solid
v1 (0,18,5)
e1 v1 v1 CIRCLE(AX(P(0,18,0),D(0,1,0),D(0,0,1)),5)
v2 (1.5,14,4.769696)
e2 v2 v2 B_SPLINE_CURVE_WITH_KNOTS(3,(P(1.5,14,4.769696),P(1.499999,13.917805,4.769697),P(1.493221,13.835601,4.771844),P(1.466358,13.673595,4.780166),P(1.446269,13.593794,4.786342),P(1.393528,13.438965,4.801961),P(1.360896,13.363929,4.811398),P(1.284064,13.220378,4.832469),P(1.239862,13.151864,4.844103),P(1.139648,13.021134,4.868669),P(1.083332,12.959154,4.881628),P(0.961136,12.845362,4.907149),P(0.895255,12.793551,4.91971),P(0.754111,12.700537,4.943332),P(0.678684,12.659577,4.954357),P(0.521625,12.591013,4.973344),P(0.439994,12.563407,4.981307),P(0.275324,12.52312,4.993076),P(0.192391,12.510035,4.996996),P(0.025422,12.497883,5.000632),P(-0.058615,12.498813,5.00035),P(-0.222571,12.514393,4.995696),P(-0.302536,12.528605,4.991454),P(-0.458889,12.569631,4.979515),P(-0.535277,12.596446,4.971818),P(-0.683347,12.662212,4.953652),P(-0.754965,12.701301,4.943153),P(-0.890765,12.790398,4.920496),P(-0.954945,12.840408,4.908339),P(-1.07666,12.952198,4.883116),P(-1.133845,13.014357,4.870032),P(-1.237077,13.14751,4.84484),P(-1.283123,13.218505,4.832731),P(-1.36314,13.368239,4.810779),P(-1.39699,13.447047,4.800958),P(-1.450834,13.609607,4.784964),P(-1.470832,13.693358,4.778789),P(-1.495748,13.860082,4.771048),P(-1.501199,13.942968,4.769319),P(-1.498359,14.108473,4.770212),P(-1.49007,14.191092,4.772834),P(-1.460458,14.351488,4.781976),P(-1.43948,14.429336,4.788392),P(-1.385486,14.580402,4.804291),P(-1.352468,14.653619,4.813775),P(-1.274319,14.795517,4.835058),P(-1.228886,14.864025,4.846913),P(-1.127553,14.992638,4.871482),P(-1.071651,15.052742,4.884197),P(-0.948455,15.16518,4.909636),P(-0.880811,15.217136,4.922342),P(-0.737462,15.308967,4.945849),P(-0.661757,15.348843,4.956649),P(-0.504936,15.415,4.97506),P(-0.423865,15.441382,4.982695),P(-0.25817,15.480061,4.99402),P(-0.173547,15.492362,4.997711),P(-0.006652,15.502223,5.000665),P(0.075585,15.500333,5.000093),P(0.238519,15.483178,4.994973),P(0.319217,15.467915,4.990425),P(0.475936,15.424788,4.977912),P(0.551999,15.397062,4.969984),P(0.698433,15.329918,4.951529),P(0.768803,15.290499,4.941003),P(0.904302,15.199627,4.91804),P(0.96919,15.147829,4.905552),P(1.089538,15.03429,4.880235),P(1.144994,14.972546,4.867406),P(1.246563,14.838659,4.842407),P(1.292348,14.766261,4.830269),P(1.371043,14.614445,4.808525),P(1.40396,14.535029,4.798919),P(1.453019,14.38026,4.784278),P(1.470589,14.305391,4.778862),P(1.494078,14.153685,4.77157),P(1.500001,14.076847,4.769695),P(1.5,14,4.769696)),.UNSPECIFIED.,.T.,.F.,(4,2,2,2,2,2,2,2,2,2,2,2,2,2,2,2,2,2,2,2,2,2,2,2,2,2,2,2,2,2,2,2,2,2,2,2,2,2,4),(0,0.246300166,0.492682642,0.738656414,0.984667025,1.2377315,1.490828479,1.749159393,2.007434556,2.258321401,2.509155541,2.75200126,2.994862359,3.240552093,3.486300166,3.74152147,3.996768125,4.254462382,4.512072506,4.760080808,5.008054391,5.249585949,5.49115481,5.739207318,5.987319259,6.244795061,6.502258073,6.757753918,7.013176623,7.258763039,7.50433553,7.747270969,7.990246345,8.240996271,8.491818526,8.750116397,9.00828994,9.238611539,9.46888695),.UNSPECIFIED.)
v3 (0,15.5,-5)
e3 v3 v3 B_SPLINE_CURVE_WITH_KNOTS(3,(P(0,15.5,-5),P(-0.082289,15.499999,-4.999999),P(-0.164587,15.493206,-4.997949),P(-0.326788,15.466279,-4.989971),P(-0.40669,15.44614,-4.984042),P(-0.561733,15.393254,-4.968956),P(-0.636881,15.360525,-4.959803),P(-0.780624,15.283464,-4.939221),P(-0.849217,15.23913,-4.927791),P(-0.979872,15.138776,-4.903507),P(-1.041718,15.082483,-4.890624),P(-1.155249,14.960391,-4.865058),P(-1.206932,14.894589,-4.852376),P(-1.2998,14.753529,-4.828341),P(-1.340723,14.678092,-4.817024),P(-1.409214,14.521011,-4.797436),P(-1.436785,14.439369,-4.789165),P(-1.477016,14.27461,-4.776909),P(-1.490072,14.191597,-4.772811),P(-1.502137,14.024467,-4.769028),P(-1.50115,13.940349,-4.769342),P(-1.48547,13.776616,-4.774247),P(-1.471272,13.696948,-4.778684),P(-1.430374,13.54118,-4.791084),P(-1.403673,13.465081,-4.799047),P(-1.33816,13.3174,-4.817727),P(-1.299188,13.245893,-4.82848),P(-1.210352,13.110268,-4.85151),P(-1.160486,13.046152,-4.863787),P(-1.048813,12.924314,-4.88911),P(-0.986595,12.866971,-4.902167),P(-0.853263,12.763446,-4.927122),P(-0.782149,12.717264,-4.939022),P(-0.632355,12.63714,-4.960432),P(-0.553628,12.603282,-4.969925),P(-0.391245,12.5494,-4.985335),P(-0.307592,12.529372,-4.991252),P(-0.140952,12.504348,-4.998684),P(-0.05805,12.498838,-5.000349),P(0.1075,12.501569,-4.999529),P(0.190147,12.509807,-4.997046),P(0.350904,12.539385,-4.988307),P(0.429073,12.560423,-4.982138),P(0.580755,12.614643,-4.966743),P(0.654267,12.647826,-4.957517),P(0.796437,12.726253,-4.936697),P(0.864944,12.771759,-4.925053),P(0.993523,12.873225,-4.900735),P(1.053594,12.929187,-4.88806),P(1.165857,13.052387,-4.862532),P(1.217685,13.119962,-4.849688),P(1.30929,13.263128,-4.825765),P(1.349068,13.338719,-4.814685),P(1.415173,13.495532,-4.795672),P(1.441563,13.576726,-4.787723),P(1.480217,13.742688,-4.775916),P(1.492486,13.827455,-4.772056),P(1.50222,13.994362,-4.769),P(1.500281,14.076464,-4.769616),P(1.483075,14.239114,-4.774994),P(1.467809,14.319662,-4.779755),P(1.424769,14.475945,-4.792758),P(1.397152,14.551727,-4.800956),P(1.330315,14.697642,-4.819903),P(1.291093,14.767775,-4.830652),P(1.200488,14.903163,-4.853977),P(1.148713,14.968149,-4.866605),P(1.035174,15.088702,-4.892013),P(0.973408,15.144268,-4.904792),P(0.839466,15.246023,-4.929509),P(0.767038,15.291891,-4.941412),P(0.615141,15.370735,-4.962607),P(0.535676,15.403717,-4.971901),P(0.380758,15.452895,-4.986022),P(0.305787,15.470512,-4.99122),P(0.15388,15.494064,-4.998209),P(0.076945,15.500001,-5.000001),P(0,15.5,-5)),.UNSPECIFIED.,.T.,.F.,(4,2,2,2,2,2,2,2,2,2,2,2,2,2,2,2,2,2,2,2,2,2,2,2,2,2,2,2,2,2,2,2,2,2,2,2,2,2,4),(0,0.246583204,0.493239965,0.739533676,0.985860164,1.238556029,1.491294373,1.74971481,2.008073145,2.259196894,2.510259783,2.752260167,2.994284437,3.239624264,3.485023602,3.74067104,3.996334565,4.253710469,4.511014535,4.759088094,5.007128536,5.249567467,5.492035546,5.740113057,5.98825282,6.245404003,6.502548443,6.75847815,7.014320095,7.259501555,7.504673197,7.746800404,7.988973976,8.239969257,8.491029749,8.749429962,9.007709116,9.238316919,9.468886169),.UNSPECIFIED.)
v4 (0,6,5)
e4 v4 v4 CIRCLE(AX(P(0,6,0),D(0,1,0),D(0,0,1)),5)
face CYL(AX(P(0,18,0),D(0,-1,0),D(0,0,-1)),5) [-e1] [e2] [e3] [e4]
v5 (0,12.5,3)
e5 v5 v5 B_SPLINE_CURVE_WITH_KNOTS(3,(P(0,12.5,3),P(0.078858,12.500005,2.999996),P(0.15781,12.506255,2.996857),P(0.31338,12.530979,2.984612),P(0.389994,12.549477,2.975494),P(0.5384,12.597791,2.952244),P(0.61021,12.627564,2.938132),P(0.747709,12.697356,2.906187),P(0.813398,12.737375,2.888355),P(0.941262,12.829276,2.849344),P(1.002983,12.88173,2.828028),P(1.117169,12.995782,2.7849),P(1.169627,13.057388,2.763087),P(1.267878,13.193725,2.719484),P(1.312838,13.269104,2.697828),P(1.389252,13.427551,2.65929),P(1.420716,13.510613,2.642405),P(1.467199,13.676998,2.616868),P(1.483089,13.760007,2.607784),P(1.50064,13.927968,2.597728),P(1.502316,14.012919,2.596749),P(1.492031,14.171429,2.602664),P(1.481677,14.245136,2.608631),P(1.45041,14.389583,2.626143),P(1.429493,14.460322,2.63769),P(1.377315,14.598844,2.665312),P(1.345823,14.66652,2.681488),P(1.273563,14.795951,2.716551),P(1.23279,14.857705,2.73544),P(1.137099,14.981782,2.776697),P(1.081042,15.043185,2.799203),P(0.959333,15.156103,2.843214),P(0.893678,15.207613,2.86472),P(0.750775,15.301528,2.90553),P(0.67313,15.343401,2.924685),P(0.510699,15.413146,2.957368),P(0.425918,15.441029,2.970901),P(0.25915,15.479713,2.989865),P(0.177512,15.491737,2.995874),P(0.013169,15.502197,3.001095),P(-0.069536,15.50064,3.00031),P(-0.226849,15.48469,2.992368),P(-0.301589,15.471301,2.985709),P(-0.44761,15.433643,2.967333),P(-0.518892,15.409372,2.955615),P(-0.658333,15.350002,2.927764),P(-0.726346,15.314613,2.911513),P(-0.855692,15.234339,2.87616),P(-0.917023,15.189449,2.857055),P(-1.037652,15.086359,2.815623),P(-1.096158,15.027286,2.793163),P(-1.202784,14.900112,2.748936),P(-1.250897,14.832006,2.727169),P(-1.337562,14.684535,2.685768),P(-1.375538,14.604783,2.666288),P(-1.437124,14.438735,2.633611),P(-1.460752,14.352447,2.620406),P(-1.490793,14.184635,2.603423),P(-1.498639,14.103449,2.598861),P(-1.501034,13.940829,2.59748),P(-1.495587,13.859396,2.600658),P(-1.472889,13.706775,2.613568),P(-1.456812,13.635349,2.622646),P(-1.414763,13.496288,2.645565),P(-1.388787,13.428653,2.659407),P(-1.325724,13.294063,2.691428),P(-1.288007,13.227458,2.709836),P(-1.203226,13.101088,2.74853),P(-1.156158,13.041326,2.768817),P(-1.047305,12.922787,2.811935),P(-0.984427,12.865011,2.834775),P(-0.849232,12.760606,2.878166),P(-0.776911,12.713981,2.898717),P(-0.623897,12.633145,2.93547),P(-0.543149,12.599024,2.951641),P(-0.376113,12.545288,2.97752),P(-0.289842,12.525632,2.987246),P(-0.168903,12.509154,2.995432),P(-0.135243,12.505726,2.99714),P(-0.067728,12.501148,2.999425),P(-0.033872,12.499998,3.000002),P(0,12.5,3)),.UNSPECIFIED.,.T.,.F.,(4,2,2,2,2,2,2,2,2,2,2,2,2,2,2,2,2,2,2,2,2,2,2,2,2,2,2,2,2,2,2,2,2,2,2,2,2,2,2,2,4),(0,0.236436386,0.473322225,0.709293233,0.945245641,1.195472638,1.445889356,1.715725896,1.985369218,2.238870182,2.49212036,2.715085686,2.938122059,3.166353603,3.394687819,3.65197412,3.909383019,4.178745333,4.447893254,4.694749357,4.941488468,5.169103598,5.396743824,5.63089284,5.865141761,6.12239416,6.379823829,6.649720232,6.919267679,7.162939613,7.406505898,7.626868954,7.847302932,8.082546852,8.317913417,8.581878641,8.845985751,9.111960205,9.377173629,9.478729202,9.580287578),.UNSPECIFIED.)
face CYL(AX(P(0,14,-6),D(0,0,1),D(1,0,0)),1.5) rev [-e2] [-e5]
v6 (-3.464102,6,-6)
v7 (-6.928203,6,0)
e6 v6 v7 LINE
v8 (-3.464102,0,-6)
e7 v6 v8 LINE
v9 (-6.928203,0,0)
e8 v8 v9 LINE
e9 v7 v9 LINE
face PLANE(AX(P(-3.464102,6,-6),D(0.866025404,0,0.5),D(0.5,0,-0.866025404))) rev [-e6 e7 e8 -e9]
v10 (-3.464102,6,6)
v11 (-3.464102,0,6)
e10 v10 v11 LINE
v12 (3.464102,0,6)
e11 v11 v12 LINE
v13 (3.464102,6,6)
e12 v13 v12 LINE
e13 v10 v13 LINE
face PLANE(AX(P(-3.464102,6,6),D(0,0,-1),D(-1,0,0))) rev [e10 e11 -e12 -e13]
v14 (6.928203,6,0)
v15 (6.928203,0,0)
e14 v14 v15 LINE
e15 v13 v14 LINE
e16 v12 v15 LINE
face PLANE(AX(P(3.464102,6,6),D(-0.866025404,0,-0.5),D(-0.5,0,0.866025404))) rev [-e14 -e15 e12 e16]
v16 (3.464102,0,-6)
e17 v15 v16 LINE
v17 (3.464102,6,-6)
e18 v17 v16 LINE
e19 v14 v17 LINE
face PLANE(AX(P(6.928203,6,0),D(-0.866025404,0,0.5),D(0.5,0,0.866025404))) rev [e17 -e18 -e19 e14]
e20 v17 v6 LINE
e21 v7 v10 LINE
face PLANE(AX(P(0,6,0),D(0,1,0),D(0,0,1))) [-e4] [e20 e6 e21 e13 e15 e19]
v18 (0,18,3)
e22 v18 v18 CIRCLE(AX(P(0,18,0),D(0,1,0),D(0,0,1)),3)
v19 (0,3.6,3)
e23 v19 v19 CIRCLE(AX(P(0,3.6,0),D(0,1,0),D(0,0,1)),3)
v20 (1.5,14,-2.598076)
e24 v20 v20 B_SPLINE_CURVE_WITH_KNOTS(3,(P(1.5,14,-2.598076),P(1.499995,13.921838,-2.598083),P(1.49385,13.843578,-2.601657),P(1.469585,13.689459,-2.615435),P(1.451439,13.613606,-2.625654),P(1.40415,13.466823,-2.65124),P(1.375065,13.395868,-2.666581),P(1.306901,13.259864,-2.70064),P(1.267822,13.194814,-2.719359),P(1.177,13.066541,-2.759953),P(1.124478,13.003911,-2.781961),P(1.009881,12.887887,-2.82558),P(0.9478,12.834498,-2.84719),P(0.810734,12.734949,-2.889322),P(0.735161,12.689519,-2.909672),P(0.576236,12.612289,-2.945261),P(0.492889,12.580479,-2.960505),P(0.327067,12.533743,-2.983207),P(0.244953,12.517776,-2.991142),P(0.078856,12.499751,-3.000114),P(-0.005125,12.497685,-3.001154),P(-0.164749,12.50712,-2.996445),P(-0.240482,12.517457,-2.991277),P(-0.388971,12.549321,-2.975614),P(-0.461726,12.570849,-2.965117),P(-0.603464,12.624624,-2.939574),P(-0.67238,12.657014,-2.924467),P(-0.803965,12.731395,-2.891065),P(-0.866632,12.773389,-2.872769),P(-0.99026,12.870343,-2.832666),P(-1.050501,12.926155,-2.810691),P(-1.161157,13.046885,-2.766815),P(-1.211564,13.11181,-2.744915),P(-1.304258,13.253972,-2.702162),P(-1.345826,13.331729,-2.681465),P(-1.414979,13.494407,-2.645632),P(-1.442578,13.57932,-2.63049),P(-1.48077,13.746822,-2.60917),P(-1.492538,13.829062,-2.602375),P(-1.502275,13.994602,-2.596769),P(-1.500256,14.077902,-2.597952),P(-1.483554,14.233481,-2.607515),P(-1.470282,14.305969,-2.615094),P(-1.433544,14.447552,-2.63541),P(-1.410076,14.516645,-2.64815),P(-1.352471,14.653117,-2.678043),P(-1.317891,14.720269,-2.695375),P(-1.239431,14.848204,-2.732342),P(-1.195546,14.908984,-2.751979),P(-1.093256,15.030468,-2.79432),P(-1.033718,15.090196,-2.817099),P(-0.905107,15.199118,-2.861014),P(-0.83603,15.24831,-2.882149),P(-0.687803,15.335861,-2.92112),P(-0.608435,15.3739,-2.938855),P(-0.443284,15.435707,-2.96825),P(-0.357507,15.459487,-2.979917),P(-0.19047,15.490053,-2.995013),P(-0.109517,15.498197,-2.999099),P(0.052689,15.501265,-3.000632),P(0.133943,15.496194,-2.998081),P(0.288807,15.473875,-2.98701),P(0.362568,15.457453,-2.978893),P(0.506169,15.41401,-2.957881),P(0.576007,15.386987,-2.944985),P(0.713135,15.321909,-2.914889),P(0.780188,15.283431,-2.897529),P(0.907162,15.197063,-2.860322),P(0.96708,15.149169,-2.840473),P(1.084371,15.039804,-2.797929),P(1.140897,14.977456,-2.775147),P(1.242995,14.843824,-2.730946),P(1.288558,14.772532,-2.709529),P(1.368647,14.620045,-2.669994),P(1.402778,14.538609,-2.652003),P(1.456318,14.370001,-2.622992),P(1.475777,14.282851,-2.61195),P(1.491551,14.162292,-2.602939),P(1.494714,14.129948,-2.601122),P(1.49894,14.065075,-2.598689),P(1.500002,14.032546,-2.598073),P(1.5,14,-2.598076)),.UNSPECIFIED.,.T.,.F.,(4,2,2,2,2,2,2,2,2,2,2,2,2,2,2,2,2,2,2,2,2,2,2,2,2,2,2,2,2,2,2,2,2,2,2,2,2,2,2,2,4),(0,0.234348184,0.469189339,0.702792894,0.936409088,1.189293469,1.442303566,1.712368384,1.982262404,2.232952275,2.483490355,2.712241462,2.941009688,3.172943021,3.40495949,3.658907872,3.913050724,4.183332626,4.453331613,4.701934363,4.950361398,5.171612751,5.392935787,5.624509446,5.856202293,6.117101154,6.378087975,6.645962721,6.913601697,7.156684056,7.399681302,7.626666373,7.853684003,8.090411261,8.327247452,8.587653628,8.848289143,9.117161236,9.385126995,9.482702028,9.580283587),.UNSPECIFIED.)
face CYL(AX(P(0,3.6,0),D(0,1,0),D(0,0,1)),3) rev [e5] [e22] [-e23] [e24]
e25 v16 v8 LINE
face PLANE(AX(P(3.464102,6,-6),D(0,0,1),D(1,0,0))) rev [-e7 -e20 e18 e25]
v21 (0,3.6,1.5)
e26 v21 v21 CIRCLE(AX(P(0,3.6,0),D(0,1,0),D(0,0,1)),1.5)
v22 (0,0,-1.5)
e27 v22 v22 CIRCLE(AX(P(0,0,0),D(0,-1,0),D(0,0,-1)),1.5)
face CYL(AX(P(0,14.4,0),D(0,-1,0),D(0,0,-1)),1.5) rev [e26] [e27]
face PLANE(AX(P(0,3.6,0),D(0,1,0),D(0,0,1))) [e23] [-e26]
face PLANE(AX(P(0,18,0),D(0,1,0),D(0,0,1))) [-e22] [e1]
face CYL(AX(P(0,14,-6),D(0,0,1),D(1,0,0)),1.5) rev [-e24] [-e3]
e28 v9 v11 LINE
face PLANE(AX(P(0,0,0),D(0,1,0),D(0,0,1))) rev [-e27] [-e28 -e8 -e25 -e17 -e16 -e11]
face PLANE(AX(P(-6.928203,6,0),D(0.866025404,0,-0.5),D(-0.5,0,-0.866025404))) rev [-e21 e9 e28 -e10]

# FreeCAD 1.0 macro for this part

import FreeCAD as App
import Part
import Sketcher

V = App.Vector
Q = App.Units.Quantity

doc = App.newDocument("Part")
params = doc.addObject("Spreadsheet::Sheet", "Params")
for row, (alias, value) in enumerate([
    ("pad1_length", "6 mm"),
    ("sketch2_diameter", "10 mm"),
    ("pad2_length", "12 mm"),
    ("sketch3_diameter", "6 mm"),
    ("pocket1_length", "14.4 mm"),
    ("sketch4_diameter", "3 mm"),
    ("sketch5_diameter", "3 mm"),
    ("pocket3_length", "14.4 mm"),
], start=1):
    params.set(f"A{row}", alias)
    params.set(f"B{row}", "=" + value)
    params.setAlias(f"B{row}", alias)

body = doc.addObject("PartDesign::Body", "Body")

# Sketch on XZ plane
sketch1 = body.newObject("Sketcher::SketchObject", "Sketch")
sketch1.AttachmentSupport = (doc.getObject("XZ_Plane"), [""])
sketch1.MapMode = "FlatFace"
sketch1.addGeometry(Part.LineSegment(V(6.928203, 0, 0), V(3.464102, -6, 0)), False)
sketch1.addGeometry(Part.LineSegment(V(3.464102, -6, 0), V(-3.464102, -6, 0)), False)
sketch1.addGeometry(Part.LineSegment(V(-3.464102, -6, 0), V(-6.928203, 0, 0)), False)
sketch1.addGeometry(Part.LineSegment(V(-6.928203, 0, 0), V(-3.464102, 6, 0)), False)
sketch1.addGeometry(Part.LineSegment(V(-3.464102, 6, 0), V(3.464102, 6, 0)), False)
sketch1.addGeometry(Part.LineSegment(V(3.464102, 6, 0), V(6.928203, 0, 0)), False)
sketch1.addConstraint(Sketcher.Constraint("Coincident", 0, 2, 1, 1))
sketch1.addConstraint(Sketcher.Constraint("Coincident", 1, 2, 2, 1))
sketch1.addConstraint(Sketcher.Constraint("Coincident", 2, 2, 3, 1))
sketch1.addConstraint(Sketcher.Constraint("Coincident", 3, 2, 4, 1))
sketch1.addConstraint(Sketcher.Constraint("Coincident", 4, 2, 5, 1))
sketch1.addConstraint(Sketcher.Constraint("Coincident", 5, 2, 0, 1))
sketch1.addConstraint(Sketcher.Constraint("Horizontal", 1))
sketch1.addConstraint(Sketcher.Constraint("Horizontal", 4))
sketch1.addConstraint(Sketcher.Constraint("Symmetric", 0, 2, 3, 2, -1, 1))
sketch1.addConstraint(Sketcher.Constraint("Symmetric", 2, 2, 5, 2, -1, 1))
sketch1.addConstraint(Sketcher.Constraint("PointOnObject", 2, 2, -1))
sketch1.addConstraint(Sketcher.Constraint("Parallel", 2, 5))
sketch1.addConstraint(Sketcher.Constraint("Vertical", 1, 2, 3, 2))
sketch1.addConstraint(Sketcher.Constraint("Angle", 0, Q("-120 deg")))
sketch1.addConstraint(Sketcher.Constraint("DistanceY", 0, 2, -1, 1, 6.0))
sketch1.addConstraint(Sketcher.Constraint("DistanceX", -1, 1, 0, 2, 3.464102))
pad1 = body.newObject("PartDesign::Pad", "Pad")
pad1.Profile = sketch1
pad1.setExpression("Length", "Params.pad1_length")
pad1.Reversed = True

# Sketch on XZ plane
sketch2 = body.newObject("Sketcher::SketchObject", "Sketch001")
sketch2.AttachmentSupport = (doc.getObject("XZ_Plane"), [""])
sketch2.MapMode = "FlatFace"
sketch2.AttachmentOffset = App.Placement(V(0, 0, -6), App.Rotation())
sketch2.addGeometry(Part.Circle(V(0, 0, 0), V(0, 0, 1), 5), False)
sketch2.addConstraint(Sketcher.Constraint("Coincident", 0, 3, -1, 1))
sketch2.addConstraint(Sketcher.Constraint("Diameter", 0, 10.0))
sketch2.setExpression("Constraints[1]", "Params.sketch2_diameter")
pad2 = body.newObject("PartDesign::Pad", "Pad001")
pad2.Profile = sketch2
pad2.setExpression("Length", "Params.pad2_length")
pad2.Reversed = True

# Sketch on XZ plane
sketch3 = body.newObject("Sketcher::SketchObject", "Sketch002")
sketch3.AttachmentSupport = (doc.getObject("XZ_Plane"), [""])
sketch3.MapMode = "FlatFace"
sketch3.AttachmentOffset = App.Placement(V(0, 0, -18), App.Rotation())
sketch3.addGeometry(Part.Circle(V(0, 0, 0), V(0, 0, 1), 3), False)
sketch3.addConstraint(Sketcher.Constraint("Coincident", 0, 3, -1, 1))
sketch3.addConstraint(Sketcher.Constraint("Diameter", 0, 6.0))
sketch3.setExpression("Constraints[1]", "Params.sketch3_diameter")
pocket1 = body.newObject("PartDesign::Pocket", "Pocket")
pocket1.Profile = sketch3
pocket1.setExpression("Length", "Params.pocket1_length")
pocket1.Reversed = True

# Sketch on XY plane
sketch4 = body.newObject("Sketcher::SketchObject", "Sketch003")
sketch4.AttachmentSupport = (doc.getObject("XY_Plane"), [""])
sketch4.MapMode = "FlatFace"
sketch4.addGeometry(Part.Circle(V(0, 14, 0), V(0, 0, 1), 1.5), False)
sketch4.addConstraint(Sketcher.Constraint("PointOnObject", 0, 3, -2))
sketch4.addConstraint(Sketcher.Constraint("Diameter", 0, 3.0))
sketch4.addConstraint(Sketcher.Constraint("DistanceY", -1, 1, 0, 3, 14.0))
sketch4.setExpression("Constraints[1]", "Params.sketch4_diameter")
pocket2 = body.newObject("PartDesign::Pocket", "Pocket001")
pocket2.Profile = sketch4
pocket2.Type = "ThroughAll"
pocket2.Midplane = True

# Sketch on XZ plane
sketch5 = body.newObject("Sketcher::SketchObject", "Sketch004")
sketch5.AttachmentSupport = (doc.getObject("XZ_Plane"), [""])
sketch5.MapMode = "FlatFace"
sketch5.addGeometry(Part.Circle(V(0, 0, 0), V(0, 0, 1), 1.5), False)
sketch5.addConstraint(Sketcher.Constraint("Coincident", 0, 3, -1, 1))
sketch5.addConstraint(Sketcher.Constraint("Diameter", 0, 3.0))
sketch5.setExpression("Constraints[1]", "Params.sketch5_diameter")
pocket3 = body.newObject("PartDesign::Pocket", "Pocket002")
pocket3.Profile = sketch5
pocket3.setExpression("Length", "Params.pocket3_length")

doc.recompute()
